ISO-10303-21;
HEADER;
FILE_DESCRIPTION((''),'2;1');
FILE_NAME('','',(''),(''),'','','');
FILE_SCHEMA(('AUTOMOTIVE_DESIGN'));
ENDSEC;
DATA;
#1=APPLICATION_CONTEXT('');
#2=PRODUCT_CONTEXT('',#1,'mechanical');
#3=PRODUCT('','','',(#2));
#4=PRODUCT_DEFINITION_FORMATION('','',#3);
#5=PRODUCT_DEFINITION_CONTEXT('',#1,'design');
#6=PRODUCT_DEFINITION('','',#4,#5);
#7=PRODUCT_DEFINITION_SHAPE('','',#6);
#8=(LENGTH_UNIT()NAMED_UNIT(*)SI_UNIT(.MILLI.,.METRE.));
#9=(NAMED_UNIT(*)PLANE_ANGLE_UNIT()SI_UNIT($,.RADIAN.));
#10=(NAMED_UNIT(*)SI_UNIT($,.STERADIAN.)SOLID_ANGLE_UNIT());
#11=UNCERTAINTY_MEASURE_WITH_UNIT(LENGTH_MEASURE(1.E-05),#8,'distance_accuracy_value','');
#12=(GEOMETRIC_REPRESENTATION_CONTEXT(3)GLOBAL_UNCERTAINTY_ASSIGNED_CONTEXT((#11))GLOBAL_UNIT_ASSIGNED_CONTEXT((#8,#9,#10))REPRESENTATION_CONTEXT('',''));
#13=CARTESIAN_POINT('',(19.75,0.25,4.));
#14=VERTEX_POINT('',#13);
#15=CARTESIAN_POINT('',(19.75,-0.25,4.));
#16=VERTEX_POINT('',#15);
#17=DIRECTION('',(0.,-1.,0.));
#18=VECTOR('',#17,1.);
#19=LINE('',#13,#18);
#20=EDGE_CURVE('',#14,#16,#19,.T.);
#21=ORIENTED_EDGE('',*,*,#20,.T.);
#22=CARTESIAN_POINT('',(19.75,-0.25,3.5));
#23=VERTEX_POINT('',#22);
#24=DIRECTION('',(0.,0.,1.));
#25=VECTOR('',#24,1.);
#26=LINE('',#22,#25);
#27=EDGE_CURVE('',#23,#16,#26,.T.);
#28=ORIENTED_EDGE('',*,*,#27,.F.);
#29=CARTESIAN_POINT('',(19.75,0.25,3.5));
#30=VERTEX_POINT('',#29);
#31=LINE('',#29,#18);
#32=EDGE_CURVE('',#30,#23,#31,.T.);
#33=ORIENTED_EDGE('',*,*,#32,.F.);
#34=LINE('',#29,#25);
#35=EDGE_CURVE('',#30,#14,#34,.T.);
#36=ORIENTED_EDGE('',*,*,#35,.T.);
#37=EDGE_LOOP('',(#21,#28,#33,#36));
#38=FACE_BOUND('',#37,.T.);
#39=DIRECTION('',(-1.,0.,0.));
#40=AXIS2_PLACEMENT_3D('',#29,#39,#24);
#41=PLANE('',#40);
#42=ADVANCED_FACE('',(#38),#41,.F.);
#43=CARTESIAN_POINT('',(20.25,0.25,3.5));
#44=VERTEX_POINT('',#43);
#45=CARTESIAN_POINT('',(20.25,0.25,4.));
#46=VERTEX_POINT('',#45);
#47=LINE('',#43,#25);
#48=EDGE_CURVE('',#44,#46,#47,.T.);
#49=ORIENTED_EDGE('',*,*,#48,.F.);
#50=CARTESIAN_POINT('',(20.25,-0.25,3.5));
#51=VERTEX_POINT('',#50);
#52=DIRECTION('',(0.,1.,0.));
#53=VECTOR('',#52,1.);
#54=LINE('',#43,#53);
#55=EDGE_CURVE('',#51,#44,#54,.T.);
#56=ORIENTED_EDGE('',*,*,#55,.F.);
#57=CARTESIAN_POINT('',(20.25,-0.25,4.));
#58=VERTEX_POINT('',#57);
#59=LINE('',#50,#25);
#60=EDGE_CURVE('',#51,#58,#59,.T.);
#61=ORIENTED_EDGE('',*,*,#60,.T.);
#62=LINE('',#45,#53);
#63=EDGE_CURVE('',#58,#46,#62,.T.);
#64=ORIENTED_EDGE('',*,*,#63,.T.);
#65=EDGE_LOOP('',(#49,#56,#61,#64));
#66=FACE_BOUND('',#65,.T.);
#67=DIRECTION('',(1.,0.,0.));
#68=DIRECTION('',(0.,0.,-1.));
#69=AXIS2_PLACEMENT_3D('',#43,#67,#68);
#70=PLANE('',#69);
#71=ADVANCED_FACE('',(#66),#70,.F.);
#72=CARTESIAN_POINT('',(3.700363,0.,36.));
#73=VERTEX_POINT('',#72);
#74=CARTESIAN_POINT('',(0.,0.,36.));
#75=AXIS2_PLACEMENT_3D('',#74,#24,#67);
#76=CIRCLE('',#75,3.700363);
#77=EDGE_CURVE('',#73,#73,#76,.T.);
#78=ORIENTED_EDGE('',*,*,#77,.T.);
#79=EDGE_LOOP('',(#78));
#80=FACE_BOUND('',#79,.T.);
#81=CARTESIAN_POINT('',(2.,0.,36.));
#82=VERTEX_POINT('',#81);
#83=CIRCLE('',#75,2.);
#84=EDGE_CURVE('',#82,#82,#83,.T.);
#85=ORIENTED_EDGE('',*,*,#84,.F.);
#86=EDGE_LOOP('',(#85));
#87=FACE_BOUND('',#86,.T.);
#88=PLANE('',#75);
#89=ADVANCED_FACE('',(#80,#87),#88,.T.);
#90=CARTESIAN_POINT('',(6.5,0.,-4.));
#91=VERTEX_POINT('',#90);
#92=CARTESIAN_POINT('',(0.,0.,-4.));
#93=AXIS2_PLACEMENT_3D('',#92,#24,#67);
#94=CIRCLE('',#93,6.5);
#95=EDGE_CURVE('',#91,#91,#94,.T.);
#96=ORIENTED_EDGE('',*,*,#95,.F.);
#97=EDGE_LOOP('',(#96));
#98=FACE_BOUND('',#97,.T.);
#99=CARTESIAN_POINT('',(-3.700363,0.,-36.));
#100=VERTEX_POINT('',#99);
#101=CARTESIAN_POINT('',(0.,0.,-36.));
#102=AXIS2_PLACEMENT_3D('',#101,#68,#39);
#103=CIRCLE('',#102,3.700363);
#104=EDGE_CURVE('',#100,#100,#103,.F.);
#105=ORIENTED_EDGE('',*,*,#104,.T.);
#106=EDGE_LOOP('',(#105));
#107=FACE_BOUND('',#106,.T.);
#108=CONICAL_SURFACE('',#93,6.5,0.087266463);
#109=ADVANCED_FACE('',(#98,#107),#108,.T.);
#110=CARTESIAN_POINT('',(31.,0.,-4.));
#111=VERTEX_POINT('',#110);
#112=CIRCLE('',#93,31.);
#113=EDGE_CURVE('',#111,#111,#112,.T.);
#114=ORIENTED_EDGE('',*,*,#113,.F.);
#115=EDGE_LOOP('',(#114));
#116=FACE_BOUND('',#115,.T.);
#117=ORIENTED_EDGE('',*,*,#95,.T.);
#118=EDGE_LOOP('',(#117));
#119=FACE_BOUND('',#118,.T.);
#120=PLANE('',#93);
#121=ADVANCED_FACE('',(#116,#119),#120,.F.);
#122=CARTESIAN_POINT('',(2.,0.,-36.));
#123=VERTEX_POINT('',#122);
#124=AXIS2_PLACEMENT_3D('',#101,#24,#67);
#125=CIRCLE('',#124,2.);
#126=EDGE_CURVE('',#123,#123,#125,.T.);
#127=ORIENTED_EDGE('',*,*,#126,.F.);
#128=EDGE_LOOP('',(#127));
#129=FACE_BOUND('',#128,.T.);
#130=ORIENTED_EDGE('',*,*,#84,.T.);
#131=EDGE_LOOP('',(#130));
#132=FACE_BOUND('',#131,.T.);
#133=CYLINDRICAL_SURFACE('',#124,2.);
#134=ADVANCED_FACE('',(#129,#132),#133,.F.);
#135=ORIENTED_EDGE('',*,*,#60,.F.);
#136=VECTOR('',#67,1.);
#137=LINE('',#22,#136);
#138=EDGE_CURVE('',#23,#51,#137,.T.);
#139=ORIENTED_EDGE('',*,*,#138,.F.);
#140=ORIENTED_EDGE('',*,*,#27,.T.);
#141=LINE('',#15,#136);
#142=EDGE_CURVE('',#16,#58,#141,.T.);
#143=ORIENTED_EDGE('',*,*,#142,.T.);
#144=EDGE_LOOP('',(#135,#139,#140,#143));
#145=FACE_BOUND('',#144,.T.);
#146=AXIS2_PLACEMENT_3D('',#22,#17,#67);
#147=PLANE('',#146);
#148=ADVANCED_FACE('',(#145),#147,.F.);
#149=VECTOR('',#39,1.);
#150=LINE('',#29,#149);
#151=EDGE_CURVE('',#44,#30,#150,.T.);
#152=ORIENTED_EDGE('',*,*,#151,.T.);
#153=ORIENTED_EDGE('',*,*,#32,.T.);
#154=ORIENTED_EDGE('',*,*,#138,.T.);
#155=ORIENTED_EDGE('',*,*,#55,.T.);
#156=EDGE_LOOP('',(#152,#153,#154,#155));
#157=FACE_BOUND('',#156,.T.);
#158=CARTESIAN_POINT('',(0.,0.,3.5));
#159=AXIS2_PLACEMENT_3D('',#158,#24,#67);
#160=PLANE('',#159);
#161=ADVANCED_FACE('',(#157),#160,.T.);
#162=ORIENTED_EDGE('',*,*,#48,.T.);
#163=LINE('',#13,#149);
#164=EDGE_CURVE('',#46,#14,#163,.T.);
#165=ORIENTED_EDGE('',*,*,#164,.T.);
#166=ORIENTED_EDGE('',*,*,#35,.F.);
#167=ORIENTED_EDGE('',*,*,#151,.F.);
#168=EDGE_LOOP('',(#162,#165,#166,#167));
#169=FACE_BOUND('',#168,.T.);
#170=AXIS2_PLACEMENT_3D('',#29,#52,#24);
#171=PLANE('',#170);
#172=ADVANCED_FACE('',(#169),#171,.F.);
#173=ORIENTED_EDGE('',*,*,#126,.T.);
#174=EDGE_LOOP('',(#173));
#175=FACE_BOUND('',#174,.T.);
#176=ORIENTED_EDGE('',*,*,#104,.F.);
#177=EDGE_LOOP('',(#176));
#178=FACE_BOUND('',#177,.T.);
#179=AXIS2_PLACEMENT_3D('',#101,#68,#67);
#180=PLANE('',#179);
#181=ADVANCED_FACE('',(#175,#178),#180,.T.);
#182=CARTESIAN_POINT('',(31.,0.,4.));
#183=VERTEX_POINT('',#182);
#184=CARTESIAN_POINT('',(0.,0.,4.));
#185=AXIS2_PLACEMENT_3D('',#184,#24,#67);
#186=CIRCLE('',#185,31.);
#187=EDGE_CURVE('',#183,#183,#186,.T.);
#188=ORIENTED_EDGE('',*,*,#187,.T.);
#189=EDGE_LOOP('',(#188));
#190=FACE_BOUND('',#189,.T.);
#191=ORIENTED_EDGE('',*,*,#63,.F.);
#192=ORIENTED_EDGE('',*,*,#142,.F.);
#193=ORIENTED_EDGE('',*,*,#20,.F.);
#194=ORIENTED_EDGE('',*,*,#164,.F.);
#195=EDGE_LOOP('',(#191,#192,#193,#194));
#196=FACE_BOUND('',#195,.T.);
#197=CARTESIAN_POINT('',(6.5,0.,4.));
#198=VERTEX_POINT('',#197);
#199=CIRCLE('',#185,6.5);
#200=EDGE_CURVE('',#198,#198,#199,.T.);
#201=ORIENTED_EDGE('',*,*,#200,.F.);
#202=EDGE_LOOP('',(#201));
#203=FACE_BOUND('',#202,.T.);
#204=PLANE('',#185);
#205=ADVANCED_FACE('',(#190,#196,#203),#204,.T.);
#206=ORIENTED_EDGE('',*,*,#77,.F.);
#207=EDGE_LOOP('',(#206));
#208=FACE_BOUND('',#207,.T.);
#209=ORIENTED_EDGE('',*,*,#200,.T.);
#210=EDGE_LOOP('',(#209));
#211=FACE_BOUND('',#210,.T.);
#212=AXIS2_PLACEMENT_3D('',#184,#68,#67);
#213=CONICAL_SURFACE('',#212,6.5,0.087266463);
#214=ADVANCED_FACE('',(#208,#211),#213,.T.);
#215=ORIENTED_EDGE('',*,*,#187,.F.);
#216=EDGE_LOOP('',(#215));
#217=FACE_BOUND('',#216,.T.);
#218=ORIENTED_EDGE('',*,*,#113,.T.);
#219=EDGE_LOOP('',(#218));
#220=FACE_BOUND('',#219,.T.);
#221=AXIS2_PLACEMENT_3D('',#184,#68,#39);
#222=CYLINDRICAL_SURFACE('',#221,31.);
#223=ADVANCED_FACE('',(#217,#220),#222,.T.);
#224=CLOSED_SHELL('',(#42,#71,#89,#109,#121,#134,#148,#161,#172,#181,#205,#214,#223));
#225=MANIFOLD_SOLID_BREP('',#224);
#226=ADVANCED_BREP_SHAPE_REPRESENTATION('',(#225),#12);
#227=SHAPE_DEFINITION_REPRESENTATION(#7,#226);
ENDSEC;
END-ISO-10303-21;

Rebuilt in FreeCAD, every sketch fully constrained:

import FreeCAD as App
import Part
import Sketcher


def add_polygon(sketch, points):
    """Adds a closed chain of lines whose ends are joined by coincident constraints."""
    first, n = sketch.GeometryCount, len(points)
    for a, b in zip(points, points[1:] + points[:1]):
        sketch.addGeometry(Part.LineSegment(App.Vector(*a, 0), App.Vector(*b, 0)), False)
    for i in range(n):
        sketch.addConstraint(Sketcher.Constraint("Coincident", first + i, 2, first + (i + 1) % n, 1))

doc = App.newDocument("Part")
body = doc.addObject("PartDesign::Body", "Body")

sketch1 = body.newObject("Sketcher::SketchObject", "Sketch")
sketch1.AttachmentSupport = (doc.getObject("XY_Plane"), [""])
sketch1.MapMode = "FlatFace"
sketch1.addGeometry(Part.Circle(App.Vector(0, 0, 0), App.Vector(0, 0, 1), 31), False)
sketch1.addConstraint(Sketcher.Constraint("Coincident", 0, 3, -1, 1))
sketch1.addConstraint(Sketcher.Constraint("Diameter", 0, 62.0))
pad1 = body.newObject("PartDesign::Pad", "Pad")
pad1.Profile = sketch1
pad1.Length = 8
pad1.Midplane = True

sketch2 = body.newObject("Sketcher::SketchObject", "Sketch001")
sketch2.AttachmentSupport = (doc.getObject("XY_Plane"), [""])
sketch2.MapMode = "FlatFace"
sketch2.AttachmentOffset = App.Placement(App.Vector(0, 0, 4), App.Rotation())
sketch2.addGeometry(Part.Circle(App.Vector(0, 0, 0), App.Vector(0, 0, 1), 6), False)
sketch2.addConstraint(Sketcher.Constraint("Coincident", 0, 3, -1, 1))
sketch2.addConstraint(Sketcher.Constraint("Diameter", 0, 13.0))
pad2 = body.newObject("PartDesign::Pad", "Pad001")
pad2.Profile = sketch2
pad2.Length = 32
pad2.TaperAngle = -5
doc.recompute()

mirrored = body.newObject("PartDesign::Mirrored", "Mirrored")
mirrored.Originals = [pad2]
mirrored.MirrorPlane = (doc.getObject("XY_Plane"), [""])
body.Tip = mirrored

sketch3 = body.newObject("Sketcher::SketchObject", "Sketch002")
sketch3.AttachmentSupport = (doc.getObject("XY_Plane"), [""])
sketch3.MapMode = "FlatFace"
sketch3.AttachmentOffset = App.Placement(App.Vector(0, 0, 36), App.Rotation())
sketch3.addGeometry(Part.Circle(App.Vector(0, 0, 0), App.Vector(0, 0, 1), 2), False)
sketch3.addConstraint(Sketcher.Constraint("Coincident", 0, 3, -1, 1))
sketch3.addConstraint(Sketcher.Constraint("Diameter", 0, 4.0))
pocket1 = body.newObject("PartDesign::Pocket", "Pocket")
pocket1.Profile = sketch3
pocket1.Type = "ThroughAll"

sketch4 = body.newObject("Sketcher::SketchObject", "Sketch003")
sketch4.AttachmentSupport = (doc.getObject("XY_Plane"), [""])
sketch4.MapMode = "FlatFace"
sketch4.AttachmentOffset = App.Placement(App.Vector(0, 0, 4), App.Rotation())
add_polygon(sketch4, [(19.8, 0.2), (19.8, -0.2), (20.2, -0.2), (20.2, 0.2)])
sketch4.addConstraint(Sketcher.Constraint("Vertical", 0))
sketch4.addConstraint(Sketcher.Constraint("Horizontal", 1))
sketch4.addConstraint(Sketcher.Constraint("Vertical", 2))
sketch4.addConstraint(Sketcher.Constraint("Horizontal", 3))
sketch4.addConstraint(Sketcher.Constraint("Equal", 3, 0))
sketch4.addConstraint(Sketcher.Constraint("DistanceX", 1, 1, 1, 2, 0.5))
sketch4.addConstraint(Sketcher.Constraint("DistanceX", -1, 1, 0, 2, 19.75))
sketch4.addConstraint(Sketcher.Constraint("DistanceY", 0, 2, -1, 1, 0.25))
pocket2 = body.newObject("PartDesign::Pocket", "Pocket001")
pocket2.Profile = sketch4
pocket2.Length = 0.5

doc.recompute()
